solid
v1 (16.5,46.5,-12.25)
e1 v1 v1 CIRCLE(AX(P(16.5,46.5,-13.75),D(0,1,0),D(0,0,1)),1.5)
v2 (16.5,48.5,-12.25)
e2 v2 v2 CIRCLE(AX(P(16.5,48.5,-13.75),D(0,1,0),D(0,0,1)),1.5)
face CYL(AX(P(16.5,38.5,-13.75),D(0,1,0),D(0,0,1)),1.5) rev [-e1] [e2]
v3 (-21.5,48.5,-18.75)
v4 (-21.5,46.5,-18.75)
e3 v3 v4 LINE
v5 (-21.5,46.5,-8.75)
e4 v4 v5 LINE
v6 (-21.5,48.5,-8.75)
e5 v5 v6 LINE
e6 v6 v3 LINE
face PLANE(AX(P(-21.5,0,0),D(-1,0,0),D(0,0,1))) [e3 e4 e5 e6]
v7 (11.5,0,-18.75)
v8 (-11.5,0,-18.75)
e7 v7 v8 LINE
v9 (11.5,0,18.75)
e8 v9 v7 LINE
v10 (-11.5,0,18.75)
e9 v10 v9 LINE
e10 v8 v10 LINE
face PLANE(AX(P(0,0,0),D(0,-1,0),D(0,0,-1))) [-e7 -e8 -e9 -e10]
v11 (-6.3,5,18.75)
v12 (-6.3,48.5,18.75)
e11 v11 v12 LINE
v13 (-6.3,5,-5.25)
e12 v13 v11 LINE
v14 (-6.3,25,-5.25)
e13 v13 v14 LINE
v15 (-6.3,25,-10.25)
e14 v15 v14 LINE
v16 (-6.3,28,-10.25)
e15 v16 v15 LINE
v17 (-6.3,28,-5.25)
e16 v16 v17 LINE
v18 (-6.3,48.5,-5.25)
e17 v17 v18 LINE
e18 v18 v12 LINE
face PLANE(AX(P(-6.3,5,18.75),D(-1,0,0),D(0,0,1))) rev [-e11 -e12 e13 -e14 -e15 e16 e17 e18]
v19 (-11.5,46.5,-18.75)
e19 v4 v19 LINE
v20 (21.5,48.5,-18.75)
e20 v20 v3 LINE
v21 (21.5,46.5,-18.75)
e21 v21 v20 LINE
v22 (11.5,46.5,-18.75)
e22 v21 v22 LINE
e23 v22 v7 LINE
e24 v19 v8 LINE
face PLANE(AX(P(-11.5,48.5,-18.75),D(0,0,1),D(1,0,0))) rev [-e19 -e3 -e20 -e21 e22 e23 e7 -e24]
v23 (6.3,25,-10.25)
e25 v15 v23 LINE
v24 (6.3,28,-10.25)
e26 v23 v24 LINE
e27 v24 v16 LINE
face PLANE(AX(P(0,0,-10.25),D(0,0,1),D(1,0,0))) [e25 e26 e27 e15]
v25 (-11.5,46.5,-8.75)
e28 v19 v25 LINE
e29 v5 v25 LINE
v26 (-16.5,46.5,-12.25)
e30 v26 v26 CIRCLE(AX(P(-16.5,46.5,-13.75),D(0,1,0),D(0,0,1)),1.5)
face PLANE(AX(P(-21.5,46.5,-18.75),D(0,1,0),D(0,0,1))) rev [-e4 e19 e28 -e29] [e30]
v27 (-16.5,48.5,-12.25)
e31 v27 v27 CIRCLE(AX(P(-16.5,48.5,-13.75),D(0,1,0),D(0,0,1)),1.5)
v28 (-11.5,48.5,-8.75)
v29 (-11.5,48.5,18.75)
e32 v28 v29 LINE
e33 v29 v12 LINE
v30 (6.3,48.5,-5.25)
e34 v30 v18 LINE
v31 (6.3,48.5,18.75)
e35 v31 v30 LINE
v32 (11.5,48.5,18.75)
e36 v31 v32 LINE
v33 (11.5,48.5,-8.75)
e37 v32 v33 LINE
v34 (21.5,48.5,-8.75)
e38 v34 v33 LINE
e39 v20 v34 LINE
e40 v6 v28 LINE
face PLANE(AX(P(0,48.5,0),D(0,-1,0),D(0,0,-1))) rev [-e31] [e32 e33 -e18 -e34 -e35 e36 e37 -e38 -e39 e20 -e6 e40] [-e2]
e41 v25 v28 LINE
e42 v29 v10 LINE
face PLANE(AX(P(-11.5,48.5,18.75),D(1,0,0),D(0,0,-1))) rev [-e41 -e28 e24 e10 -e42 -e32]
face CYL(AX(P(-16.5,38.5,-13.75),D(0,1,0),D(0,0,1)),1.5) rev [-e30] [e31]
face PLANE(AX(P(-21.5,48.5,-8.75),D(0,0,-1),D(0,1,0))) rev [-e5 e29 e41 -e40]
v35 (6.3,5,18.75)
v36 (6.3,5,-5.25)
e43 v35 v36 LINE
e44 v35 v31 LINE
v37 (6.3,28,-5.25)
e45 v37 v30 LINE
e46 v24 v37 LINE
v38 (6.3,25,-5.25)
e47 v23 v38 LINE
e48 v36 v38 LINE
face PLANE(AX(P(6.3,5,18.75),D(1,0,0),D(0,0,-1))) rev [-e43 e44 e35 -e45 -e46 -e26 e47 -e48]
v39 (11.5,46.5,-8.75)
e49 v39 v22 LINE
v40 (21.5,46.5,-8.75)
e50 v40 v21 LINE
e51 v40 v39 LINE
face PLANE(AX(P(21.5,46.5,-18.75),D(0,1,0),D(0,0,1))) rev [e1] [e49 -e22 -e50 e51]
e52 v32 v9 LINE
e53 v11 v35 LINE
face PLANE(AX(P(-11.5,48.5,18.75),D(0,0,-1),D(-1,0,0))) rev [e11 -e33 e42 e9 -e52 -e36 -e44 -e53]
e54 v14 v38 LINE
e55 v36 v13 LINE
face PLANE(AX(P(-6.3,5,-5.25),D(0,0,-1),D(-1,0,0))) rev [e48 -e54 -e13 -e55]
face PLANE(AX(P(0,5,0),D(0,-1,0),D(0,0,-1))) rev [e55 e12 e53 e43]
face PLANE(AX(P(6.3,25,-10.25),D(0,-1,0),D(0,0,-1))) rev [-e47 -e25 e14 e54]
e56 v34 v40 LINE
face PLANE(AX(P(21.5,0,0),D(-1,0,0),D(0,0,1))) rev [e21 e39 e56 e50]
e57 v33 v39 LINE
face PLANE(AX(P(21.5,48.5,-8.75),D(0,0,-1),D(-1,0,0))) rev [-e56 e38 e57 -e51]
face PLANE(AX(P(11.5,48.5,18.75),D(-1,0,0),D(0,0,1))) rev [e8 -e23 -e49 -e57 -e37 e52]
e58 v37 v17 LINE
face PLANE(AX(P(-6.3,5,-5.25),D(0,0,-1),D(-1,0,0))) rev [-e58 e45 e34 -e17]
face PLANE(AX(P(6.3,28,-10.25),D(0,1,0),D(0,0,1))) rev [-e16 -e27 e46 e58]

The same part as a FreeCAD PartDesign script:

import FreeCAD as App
import Part
import Sketcher
from FreeCAD import Vector
Q = App.Units.Quantity

doc = App.newDocument("Part")
params = doc.addObject("Spreadsheet::Sheet", "Params")
for row, (alias, value) in enumerate([
    ("sketch1_width", "23 mm"),
    ("sketch1_height", "37.5 mm"),
    ("pad1_length", "48.5 mm"),
    ("sketch2_height", "24 mm"),
    ("sketch2_width", "12.6 mm"),
    ("pocket1_length", "43.5 mm"),
    ("sketch3_height", "3 mm"),
    ("sketch3_width", "12.6 mm"),
    ("pocket2_length", "5 mm"),
    ("sketch4_width", "2 mm"),
    ("sketch4_height", "10 mm"),
    ("pad2_length", "10 mm"),
    ("sketch5_width", "2 mm"),
    ("sketch5_height", "10 mm"),
    ("pad3_length", "10 mm"),
    ("sketch6_diameter", "3 mm"),
    ("pocket3_length", "10 mm"),
], start=1):
    params.set(f"A{row}", alias)
    params.set(f"B{row}", "=" + value)
    params.setAlias(f"B{row}", alias)

body = doc.addObject("PartDesign::Body", "Body")

# Sketch on XZ plane
sketch1 = body.newObject("Sketcher::SketchObject", "Sketch")
sketch1.AttachmentSupport = (doc.getObject("XZ_Plane"), [""])
sketch1.MapMode = "FlatFace"
sketch1.addGeometry([
    Part.LineSegment(Vector(-11.5, -18.75, 0), Vector(-11.5, 18.75, 0)),
    Part.LineSegment(Vector(-11.5, 18.75, 0), Vector(11.5, 18.75, 0)),
    Part.LineSegment(Vector(11.5, 18.75, 0), Vector(11.5, -18.75, 0)),
    Part.LineSegment(Vector(11.5, -18.75, 0), Vector(-11.5, -18.75, 0)),
], False)
sketch1.addConstraint([
    Sketcher.Constraint("Coincident", 0, 2, 1, 1),
    Sketcher.Constraint("Coincident", 1, 2, 2, 1),
    Sketcher.Constraint("Coincident", 2, 2, 3, 1),
    Sketcher.Constraint("Coincident", 3, 2, 0, 1),
    Sketcher.Constraint("Vertical", 0),
    Sketcher.Constraint("Horizontal", 1),
    Sketcher.Constraint("Vertical", 2),
    Sketcher.Constraint("Horizontal", 3),
    Sketcher.Constraint("Symmetric", 0, 2, 2, 2, -1, 1),
    Sketcher.Constraint("DistanceX", 1, 1, 1, 2, Q("23 mm")),
    Sketcher.Constraint("DistanceY", 0, 1, 0, 2, Q("37.5 mm")),
])
sketch1.setExpression("Constraints[9]", "Params.sketch1_width")
sketch1.setExpression("Constraints[10]", "Params.sketch1_height")
pad1 = body.newObject("PartDesign::Pad", "Pad")
pad1.Profile = sketch1
pad1.setExpression("Length", "Params.pad1_length")
pad1.Reversed = True

# Sketch on XZ plane
sketch2 = body.newObject("Sketcher::SketchObject", "Sketch001")
sketch2.AttachmentSupport = (doc.getObject("XZ_Plane"), [""])
sketch2.MapMode = "FlatFace"
sketch2.AttachmentOffset = App.Placement(Vector(0, 0, -48.5), App.Rotation())
sketch2.addGeometry([
    Part.LineSegment(Vector(-6.3, -5.25, 0), Vector(-6.3, 18.75, 0)),
    Part.LineSegment(Vector(-6.3, 18.75, 0), Vector(6.3, 18.75, 0)),
    Part.LineSegment(Vector(6.3, 18.75, 0), Vector(6.3, -5.25, 0)),
    Part.LineSegment(Vector(6.3, -5.25, 0), Vector(-6.3, -5.25, 0)),
], False)
sketch2.addConstraint([
    Sketcher.Constraint("Coincident", 0, 2, 1, 1),
    Sketcher.Constraint("Coincident", 1, 2, 2, 1),
    Sketcher.Constraint("Coincident", 2, 2, 3, 1),
    Sketcher.Constraint("Coincident", 3, 2, 0, 1),
    Sketcher.Constraint("Vertical", 0),
    Sketcher.Constraint("Horizontal", 1),
    Sketcher.Constraint("Vertical", 2),
    Sketcher.Constraint("Horizontal", 3),
    Sketcher.Constraint("DistanceY", 0, 1, 0, 2, Q("24 mm")),
    Sketcher.Constraint("DistanceX", 1, 1, 1, 2, Q("12.6 mm")),
    Sketcher.Constraint("DistanceX", 0, 2, -1, 1, Q("6.3 mm")),
    Sketcher.Constraint("DistanceY", -1, 1, 0, 2, Q("18.75 mm")),
])
sketch2.setExpression("Constraints[8]", "Params.sketch2_height")
sketch2.setExpression("Constraints[9]", "Params.sketch2_width")
pocket1 = body.newObject("PartDesign::Pocket", "Pocket")
pocket1.Profile = sketch2
pocket1.setExpression("Length", "Params.pocket1_length")
pocket1.Reversed = True

# Sketch on XY plane
sketch3 = body.newObject("Sketcher::SketchObject", "Sketch002")
sketch3.AttachmentSupport = (doc.getObject("XY_Plane"), [""])
sketch3.MapMode = "FlatFace"
sketch3.AttachmentOffset = App.Placement(Vector(0, 0, -5.25), App.Rotation())
sketch3.addGeometry([
    Part.LineSegment(Vector(-6.3, 28, 0), Vector(-6.3, 25, 0)),
    Part.LineSegment(Vector(-6.3, 25, 0), Vector(6.3, 25, 0)),
    Part.LineSegment(Vector(6.3, 25, 0), Vector(6.3, 28, 0)),
    Part.LineSegment(Vector(6.3, 28, 0), Vector(-6.3, 28, 0)),
], False)
sketch3.addConstraint([
    Sketcher.Constraint("Coincident", 0, 2, 1, 1),
    Sketcher.Constraint("Coincident", 1, 2, 2, 1),
    Sketcher.Constraint("Coincident", 2, 2, 3, 1),
    Sketcher.Constraint("Coincident", 3, 2, 0, 1),
    Sketcher.Constraint("Vertical", 0),
    Sketcher.Constraint("Horizontal", 1),
    Sketcher.Constraint("Vertical", 2),
    Sketcher.Constraint("Horizontal", 3),
    Sketcher.Constraint("DistanceY", 0, 2, 0, 1, Q("3 mm")),
    Sketcher.Constraint("DistanceX", 1, 1, 1, 2, Q("12.6 mm")),
    Sketcher.Constraint("DistanceY", -1, 1, 0, 2, Q("25 mm")),
    Sketcher.Constraint("DistanceX", 0, 2, -1, 1, Q("6.3 mm")),
])
sketch3.setExpression("Constraints[8]", "Params.sketch3_height")
sketch3.setExpression("Constraints[9]", "Params.sketch3_width")
pocket2 = body.newObject("PartDesign::Pocket", "Pocket001")
pocket2.Profile = sketch3
pocket2.setExpression("Length", "Params.pocket2_length")

# Sketch on YZ plane
sketch4 = body.newObject("Sketcher::SketchObject", "Sketch003")
sketch4.AttachmentSupport = (doc.getObject("YZ_Plane"), [""])
sketch4.MapMode = "FlatFace"
sketch4.AttachmentOffset = App.Placement(Vector(0, 0, -11.5), App.Rotation())
sketch4.addGeometry([
    Part.LineSegment(Vector(48.5, -18.75, 0), Vector(46.5, -18.75, 0)),
    Part.LineSegment(Vector(46.5, -18.75, 0), Vector(46.5, -8.75, 0)),
    Part.LineSegment(Vector(46.5, -8.75, 0), Vector(48.5, -8.75, 0)),
    Part.LineSegment(Vector(48.5, -8.75, 0), Vector(48.5, -18.75, 0)),
], False)
sketch4.addConstraint([
    Sketcher.Constraint("Coincident", 0, 2, 1, 1),
    Sketcher.Constraint("Coincident", 1, 2, 2, 1),
    Sketcher.Constraint("Coincident", 2, 2, 3, 1),
    Sketcher.Constraint("Coincident", 3, 2, 0, 1),
    Sketcher.Constraint("Horizontal", 0),
    Sketcher.Constraint("Vertical", 1),
    Sketcher.Constraint("Horizontal", 2),
    Sketcher.Constraint("Vertical", 3),
    Sketcher.Constraint("DistanceX", 0, 2, 0, 1, Q("2 mm")),
    Sketcher.Constraint("DistanceY", 1, 1, 1, 2, Q("10 mm")),
    Sketcher.Constraint("DistanceX", -1, 1, 0, 2, Q("46.5 mm")),
    Sketcher.Constraint("DistanceY", 0, 2, -1, 1, Q("18.75 mm")),
])
sketch4.setExpression("Constraints[8]", "Params.sketch4_width")
sketch4.setExpression("Constraints[9]", "Params.sketch4_height")
pad2 = body.newObject("PartDesign::Pad", "Pad001")
pad2.Profile = sketch4
pad2.setExpression("Length", "Params.pad2_length")
pad2.Reversed = True

# Sketch on YZ plane
sketch5 = body.newObject("Sketcher::SketchObject", "Sketch004")
sketch5.AttachmentSupport = (doc.getObject("YZ_Plane"), [""])
sketch5.MapMode = "FlatFace"
sketch5.AttachmentOffset = App.Placement(Vector(0, 0, 11.5), App.Rotation())
sketch5.addGeometry([
    Part.LineSegment(Vector(48.5, -8.75, 0), Vector(46.5, -8.75, 0)),
    Part.LineSegment(Vector(46.5, -8.75, 0), Vector(46.5, -18.75, 0)),
    Part.LineSegment(Vector(46.5, -18.75, 0), Vector(48.5, -18.75, 0)),
    Part.LineSegment(Vector(48.5, -18.75, 0), Vector(48.5, -8.75, 0)),
], False)
sketch5.addConstraint([
    Sketcher.Constraint("Coincident", 0, 2, 1, 1),
    Sketcher.Constraint("Coincident", 1, 2, 2, 1),
    Sketcher.Constraint("Coincident", 2, 2, 3, 1),
    Sketcher.Constraint("Coincident", 3, 2, 0, 1),
    Sketcher.Constraint("Horizontal", 0),
    Sketcher.Constraint("Vertical", 1),
    Sketcher.Constraint("Horizontal", 2),
    Sketcher.Constraint("Vertical", 3),
    Sketcher.Constraint("DistanceX", 0, 2, 0, 1, Q("2 mm")),
    Sketcher.Constraint("DistanceY", 1, 2, 1, 1, Q("10 mm")),
    Sketcher.Constraint("DistanceX", -1, 1, 0, 2, Q("46.5 mm")),
    Sketcher.Constraint("DistanceY", 0, 2, -1, 1, Q("8.75 mm")),
])
sketch5.setExpression("Constraints[8]", "Params.sketch5_width")
sketch5.setExpression("Constraints[9]", "Params.sketch5_height")
pad3 = body.newObject("PartDesign::Pad", "Pad002")
pad3.Profile = sketch5
pad3.setExpression("Length", "Params.pad3_length")

# Sketch on XZ plane
sketch6 = body.newObject("Sketcher::SketchObject", "Sketch005")
sketch6.AttachmentSupport = (doc.getObject("XZ_Plane"), [""])
sketch6.MapMode = "FlatFace"
sketch6.AttachmentOffset = App.Placement(Vector(0, 0, -48.5), App.Rotation())
sketch6.addGeometry([
    Part.Circle(Vector(16.5, -13.75, 0), Vector(0, 0, 1), 1.5),
    Part.Circle(Vector(-16.5, -13.75, 0), Vector(0, 0, 1), 1.5),
], False)
sketch6.addConstraint([
    Sketcher.Constraint("Equal", 0, 1),
    Sketcher.Constraint("Symmetric", 0, 3, 1, 3, -2),
    Sketcher.Constraint("Diameter", 0, Q("3 mm")),
    Sketcher.Constraint("DistanceX", 1, 3, 0, 3, Q("33 mm")),
    Sketcher.Constraint("DistanceY", 0, 3, -1, 1, Q("13.75 mm")),
])
sketch6.setExpression("Constraints[2]", "Params.sketch6_diameter")
pocket3 = body.newObject("PartDesign::Pocket", "Pocket002")
pocket3.Profile = sketch6
pocket3.setExpression("Length", "Params.pocket3_length")
pocket3.Reversed = True

doc.recompute()
